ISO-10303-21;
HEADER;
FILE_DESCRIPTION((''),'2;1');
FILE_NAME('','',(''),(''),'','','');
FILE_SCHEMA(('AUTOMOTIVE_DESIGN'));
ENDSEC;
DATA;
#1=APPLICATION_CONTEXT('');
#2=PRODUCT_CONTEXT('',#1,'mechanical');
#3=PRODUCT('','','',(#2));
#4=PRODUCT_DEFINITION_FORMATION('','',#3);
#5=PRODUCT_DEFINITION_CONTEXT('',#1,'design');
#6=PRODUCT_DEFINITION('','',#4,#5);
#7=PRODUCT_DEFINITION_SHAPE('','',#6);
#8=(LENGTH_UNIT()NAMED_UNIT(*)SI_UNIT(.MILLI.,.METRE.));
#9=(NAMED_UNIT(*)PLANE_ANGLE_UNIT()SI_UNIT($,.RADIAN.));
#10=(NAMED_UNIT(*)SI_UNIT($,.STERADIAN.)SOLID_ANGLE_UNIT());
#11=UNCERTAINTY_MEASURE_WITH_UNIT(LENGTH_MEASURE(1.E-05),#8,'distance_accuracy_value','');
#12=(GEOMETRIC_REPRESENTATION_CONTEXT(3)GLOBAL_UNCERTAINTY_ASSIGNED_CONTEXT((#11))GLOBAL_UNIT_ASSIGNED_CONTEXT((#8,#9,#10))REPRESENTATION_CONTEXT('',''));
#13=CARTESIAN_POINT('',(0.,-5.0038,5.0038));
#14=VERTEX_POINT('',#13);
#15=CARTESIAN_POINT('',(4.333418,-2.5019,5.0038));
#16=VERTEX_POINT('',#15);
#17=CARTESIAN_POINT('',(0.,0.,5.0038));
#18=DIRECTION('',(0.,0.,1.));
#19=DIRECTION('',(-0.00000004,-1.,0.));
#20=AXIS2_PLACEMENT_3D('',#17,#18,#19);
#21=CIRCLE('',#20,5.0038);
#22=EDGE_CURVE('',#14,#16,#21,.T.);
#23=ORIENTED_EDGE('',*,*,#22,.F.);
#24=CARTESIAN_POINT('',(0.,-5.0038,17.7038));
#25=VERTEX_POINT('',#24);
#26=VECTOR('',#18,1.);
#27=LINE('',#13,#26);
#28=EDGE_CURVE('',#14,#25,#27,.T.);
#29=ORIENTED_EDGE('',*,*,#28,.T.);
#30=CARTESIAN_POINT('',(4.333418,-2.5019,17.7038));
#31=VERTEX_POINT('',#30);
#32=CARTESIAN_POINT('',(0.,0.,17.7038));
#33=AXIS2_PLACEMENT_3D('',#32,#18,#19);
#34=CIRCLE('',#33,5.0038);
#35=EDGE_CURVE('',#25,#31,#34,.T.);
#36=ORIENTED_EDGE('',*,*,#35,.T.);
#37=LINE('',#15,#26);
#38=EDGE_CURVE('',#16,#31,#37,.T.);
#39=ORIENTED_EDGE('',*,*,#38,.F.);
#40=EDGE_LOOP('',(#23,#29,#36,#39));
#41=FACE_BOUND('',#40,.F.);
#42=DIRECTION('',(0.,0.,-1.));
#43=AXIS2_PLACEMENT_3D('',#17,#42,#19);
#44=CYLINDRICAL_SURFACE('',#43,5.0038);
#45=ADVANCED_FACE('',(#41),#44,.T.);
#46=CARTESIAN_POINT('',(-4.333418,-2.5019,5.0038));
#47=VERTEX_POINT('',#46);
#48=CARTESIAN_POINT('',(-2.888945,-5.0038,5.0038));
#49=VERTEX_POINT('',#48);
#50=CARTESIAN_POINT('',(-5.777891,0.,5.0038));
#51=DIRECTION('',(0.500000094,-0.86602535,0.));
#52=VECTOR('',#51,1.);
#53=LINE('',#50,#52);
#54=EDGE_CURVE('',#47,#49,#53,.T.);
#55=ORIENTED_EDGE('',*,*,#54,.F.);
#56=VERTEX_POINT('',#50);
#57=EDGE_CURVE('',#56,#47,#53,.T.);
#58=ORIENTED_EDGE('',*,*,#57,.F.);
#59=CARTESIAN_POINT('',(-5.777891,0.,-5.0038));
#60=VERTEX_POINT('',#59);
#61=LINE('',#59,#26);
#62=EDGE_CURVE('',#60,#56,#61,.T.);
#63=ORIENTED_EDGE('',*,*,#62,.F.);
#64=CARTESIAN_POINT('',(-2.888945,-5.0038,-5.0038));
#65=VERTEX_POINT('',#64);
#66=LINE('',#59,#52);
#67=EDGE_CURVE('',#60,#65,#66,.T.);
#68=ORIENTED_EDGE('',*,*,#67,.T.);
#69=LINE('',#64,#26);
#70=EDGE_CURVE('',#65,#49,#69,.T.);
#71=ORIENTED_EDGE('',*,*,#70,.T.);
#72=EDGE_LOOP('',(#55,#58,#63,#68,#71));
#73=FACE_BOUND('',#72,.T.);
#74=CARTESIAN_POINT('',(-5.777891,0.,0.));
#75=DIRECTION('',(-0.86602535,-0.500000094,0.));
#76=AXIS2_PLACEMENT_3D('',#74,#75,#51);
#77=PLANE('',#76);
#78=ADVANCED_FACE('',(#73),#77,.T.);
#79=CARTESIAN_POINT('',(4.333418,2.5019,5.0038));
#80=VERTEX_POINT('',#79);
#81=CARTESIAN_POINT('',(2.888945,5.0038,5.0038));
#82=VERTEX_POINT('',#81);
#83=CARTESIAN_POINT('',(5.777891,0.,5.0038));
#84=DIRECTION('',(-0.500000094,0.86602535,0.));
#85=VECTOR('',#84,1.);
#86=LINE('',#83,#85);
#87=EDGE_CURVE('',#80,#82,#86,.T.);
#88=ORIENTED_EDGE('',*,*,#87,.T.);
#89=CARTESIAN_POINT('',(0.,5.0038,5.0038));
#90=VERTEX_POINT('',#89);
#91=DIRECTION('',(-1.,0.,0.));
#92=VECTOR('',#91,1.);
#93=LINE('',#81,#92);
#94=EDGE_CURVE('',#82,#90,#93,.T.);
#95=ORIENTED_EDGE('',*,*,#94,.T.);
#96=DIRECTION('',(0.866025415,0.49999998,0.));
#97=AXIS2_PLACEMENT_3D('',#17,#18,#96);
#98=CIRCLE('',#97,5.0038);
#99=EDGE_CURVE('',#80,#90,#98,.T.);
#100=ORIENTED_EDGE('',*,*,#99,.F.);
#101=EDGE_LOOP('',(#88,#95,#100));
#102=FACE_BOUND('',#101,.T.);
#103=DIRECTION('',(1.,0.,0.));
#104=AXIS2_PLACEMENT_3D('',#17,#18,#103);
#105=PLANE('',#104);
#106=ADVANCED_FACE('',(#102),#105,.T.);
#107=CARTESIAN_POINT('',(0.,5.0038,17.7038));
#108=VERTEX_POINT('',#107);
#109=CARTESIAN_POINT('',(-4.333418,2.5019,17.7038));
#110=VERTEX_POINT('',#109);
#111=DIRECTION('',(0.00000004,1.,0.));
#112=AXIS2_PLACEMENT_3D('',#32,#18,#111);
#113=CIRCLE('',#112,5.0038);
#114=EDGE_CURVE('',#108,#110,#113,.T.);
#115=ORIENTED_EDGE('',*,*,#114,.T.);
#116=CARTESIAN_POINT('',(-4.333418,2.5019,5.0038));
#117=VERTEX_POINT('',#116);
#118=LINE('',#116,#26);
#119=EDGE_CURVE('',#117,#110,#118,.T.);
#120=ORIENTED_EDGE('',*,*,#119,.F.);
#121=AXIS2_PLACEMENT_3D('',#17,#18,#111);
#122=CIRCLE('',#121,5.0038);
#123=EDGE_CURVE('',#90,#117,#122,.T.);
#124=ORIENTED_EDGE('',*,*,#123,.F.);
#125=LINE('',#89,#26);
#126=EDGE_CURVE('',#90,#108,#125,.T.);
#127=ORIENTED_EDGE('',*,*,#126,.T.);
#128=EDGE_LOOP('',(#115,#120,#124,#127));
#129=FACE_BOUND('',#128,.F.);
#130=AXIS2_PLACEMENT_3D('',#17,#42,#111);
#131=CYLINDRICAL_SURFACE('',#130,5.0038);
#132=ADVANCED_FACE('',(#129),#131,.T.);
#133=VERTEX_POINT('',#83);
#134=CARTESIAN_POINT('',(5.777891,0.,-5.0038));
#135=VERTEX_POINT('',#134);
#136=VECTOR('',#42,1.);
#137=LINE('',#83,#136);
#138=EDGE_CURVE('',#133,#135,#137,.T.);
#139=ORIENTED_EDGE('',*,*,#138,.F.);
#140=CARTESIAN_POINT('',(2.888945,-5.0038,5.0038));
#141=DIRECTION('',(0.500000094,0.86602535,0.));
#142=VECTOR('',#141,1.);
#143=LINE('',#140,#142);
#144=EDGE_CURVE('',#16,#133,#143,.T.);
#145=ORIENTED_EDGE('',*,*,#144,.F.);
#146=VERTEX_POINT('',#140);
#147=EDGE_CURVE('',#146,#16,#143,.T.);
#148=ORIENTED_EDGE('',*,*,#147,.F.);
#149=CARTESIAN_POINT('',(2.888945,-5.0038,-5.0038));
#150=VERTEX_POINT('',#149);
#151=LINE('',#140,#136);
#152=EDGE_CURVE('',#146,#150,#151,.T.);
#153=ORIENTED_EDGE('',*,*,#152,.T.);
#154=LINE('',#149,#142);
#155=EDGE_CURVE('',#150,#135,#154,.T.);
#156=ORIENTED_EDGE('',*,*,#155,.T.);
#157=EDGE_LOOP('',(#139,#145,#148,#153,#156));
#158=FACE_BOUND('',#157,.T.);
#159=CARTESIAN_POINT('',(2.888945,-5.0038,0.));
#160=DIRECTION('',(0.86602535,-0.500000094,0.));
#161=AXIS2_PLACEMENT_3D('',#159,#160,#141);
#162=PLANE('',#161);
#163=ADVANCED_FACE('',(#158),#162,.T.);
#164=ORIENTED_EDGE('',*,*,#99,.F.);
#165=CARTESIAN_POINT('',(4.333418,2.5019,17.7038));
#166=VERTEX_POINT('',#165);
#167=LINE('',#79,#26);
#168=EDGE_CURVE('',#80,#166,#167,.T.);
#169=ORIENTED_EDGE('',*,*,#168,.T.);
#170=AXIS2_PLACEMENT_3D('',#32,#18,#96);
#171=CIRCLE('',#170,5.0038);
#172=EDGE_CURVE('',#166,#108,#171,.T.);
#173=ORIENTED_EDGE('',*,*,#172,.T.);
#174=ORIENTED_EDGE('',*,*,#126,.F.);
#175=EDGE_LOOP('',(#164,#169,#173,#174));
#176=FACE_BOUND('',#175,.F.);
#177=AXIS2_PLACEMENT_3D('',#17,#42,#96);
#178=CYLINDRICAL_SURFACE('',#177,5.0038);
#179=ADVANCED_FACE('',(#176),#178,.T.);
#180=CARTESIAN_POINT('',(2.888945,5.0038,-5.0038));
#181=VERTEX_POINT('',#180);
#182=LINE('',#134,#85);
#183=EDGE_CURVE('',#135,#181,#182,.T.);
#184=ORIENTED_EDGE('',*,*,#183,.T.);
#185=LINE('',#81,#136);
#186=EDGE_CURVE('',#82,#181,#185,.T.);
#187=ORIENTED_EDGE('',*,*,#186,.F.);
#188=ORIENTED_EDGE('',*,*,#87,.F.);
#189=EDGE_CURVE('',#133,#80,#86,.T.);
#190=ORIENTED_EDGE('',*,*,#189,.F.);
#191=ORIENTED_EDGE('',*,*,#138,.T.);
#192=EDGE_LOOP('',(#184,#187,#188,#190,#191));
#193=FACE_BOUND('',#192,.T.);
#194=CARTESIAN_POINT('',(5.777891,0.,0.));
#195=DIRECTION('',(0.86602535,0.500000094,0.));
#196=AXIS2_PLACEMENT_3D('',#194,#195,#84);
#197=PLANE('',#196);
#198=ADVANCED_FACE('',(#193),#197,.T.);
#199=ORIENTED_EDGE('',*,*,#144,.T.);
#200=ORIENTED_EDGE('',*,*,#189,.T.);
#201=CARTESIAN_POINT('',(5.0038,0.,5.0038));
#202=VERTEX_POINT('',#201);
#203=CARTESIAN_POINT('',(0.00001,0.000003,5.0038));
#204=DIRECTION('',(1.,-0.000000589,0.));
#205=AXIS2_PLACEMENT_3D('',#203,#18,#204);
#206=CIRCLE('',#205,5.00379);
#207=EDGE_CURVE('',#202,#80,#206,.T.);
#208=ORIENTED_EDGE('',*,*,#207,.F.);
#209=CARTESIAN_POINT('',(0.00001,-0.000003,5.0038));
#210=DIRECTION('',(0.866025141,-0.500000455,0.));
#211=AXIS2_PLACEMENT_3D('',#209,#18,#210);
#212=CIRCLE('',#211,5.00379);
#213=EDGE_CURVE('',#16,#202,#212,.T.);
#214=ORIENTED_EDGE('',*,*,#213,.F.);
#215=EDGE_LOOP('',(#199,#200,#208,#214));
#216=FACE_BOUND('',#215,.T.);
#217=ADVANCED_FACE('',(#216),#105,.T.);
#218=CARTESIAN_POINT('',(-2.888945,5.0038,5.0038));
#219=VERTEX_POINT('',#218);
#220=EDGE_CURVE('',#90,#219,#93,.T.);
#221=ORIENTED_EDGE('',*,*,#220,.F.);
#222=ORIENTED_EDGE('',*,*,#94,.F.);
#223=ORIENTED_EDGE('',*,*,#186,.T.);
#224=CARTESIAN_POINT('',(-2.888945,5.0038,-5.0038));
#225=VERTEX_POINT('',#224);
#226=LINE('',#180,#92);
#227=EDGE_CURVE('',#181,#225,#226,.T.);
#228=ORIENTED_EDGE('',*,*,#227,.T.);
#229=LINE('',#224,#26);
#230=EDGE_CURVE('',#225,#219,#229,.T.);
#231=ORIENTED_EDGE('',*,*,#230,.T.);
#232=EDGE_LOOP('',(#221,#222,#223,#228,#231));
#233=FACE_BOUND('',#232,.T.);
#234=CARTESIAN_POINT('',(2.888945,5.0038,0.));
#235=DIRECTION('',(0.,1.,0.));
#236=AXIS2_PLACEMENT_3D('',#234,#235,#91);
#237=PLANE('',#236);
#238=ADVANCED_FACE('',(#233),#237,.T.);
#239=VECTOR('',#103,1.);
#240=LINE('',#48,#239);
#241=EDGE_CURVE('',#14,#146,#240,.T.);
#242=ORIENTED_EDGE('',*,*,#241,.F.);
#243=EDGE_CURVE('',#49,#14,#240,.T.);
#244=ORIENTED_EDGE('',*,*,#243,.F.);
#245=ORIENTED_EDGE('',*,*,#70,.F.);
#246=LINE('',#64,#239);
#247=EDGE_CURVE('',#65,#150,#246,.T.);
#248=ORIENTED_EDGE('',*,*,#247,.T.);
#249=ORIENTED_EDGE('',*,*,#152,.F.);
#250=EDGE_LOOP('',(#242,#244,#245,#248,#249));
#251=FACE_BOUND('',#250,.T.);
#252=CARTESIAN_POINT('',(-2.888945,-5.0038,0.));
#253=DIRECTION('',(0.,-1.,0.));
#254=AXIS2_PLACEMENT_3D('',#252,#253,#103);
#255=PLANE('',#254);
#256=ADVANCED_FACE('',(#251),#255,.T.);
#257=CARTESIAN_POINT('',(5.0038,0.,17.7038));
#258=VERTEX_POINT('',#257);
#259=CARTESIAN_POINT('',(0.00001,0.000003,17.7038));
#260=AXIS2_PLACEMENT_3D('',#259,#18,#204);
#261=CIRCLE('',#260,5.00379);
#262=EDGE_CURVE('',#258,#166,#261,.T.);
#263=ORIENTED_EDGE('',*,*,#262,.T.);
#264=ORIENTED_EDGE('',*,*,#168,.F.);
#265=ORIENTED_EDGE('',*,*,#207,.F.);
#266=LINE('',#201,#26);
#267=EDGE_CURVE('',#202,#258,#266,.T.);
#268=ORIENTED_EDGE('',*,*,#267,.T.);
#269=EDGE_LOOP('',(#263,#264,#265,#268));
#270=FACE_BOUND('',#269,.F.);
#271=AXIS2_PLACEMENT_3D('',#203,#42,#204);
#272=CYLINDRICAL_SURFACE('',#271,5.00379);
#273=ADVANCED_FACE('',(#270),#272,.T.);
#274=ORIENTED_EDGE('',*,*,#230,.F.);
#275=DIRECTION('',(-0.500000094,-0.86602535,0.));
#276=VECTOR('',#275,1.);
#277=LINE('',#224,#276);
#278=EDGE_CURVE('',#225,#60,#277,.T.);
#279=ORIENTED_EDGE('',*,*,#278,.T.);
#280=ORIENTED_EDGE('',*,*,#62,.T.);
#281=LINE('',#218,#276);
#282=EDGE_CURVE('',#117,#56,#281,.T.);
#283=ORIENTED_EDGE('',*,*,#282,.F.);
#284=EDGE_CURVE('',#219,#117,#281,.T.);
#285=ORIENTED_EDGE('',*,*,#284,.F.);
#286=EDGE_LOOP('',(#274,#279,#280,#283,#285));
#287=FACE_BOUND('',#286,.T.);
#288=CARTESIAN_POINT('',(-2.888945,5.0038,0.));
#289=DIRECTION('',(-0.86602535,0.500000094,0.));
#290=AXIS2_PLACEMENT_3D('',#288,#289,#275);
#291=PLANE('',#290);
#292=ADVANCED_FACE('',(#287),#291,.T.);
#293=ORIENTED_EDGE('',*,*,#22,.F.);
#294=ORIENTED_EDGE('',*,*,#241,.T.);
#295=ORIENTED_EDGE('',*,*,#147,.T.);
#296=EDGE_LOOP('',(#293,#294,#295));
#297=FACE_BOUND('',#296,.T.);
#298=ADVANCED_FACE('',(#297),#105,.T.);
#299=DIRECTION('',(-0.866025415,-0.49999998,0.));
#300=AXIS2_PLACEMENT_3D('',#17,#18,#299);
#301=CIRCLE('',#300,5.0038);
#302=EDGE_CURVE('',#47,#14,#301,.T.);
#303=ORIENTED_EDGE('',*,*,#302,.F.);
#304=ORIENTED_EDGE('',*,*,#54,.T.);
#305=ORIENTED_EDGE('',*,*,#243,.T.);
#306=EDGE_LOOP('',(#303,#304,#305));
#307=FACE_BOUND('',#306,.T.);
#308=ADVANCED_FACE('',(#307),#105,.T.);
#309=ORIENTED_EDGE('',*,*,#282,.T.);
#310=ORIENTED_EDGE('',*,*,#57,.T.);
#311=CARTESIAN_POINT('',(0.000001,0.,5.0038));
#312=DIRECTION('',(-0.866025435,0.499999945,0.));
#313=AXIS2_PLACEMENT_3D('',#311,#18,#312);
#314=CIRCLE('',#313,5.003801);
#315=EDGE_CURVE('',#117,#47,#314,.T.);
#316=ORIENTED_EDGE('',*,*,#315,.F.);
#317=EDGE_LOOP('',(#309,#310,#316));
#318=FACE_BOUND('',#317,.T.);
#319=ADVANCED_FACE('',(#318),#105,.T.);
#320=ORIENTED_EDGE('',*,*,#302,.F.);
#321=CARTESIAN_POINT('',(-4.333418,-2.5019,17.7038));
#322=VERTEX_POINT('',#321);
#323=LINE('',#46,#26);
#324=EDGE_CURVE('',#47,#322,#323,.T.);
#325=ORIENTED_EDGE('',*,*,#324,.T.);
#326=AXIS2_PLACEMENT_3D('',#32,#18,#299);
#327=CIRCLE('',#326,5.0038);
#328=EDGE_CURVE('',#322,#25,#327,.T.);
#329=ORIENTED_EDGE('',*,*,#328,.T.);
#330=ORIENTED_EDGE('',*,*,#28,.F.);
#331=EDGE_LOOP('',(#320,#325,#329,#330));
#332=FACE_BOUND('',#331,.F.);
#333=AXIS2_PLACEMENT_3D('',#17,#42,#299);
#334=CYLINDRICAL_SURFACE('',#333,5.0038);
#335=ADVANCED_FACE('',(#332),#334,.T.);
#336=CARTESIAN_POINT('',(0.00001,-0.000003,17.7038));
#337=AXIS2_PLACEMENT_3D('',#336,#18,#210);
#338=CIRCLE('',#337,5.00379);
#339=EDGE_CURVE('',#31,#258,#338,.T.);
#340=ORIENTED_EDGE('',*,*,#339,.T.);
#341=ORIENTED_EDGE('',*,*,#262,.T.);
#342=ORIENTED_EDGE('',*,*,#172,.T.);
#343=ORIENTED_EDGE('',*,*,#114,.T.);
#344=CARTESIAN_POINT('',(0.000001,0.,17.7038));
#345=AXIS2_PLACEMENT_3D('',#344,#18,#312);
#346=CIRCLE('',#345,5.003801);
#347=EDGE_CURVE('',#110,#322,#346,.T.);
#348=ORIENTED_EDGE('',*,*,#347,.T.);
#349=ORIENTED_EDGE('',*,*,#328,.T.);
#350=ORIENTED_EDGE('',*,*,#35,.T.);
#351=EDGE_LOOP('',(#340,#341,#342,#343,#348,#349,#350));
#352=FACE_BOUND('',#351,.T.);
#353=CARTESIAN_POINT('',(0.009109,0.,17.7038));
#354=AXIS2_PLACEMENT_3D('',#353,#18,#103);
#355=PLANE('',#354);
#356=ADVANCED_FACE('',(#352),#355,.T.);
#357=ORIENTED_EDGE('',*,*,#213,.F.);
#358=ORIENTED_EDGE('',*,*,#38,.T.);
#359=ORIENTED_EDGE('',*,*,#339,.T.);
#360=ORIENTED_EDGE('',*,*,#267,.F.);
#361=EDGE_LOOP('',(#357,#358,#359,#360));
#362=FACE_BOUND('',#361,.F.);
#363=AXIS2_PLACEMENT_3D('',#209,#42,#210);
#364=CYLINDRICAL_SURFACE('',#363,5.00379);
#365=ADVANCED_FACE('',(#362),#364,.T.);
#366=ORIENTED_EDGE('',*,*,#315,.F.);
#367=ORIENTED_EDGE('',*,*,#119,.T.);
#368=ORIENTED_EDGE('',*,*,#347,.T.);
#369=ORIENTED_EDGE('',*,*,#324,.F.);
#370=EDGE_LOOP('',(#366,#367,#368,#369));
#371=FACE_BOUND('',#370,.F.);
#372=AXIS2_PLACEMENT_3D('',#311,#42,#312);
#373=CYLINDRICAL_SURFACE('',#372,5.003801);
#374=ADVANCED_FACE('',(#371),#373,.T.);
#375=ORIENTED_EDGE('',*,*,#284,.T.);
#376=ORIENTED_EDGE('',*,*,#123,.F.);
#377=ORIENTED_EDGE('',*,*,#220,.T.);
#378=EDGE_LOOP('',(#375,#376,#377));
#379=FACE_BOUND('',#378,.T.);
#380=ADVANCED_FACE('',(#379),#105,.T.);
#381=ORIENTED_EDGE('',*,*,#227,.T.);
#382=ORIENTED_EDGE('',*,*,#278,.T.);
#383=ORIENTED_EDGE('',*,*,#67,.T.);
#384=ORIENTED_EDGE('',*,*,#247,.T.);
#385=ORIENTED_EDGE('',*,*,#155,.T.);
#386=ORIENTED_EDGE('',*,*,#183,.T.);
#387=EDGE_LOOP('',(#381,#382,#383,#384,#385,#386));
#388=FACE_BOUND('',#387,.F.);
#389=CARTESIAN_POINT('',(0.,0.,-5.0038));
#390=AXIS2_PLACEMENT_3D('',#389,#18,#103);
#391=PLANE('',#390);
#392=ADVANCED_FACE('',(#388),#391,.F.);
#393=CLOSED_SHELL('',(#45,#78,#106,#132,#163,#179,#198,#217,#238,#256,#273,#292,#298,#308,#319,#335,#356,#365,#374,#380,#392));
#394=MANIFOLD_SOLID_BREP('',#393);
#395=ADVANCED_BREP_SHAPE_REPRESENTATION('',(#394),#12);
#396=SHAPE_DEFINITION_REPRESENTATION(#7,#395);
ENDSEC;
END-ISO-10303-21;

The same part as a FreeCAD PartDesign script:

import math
import FreeCAD as App
import Part
import Sketcher
from FreeCAD import Vector
Q = App.Units.Quantity


def add_polygon(sketch, points):
    """Adds a closed chain of lines whose ends are joined by coincident constraints."""
    first, n = sketch.GeometryCount, len(points)
    for a, b in zip(points, points[1:] + points[:1]):
        sketch.addGeometry(Part.LineSegment(App.Vector(*a, 0), App.Vector(*b, 0)), False)
    for i in range(n):
        sketch.addConstraint(Sketcher.Constraint("Coincident", first + i, 2, first + (i + 1) % n, 1))

doc = App.newDocument("Part")
body = doc.addObject("PartDesign::Body", "Body")

sketch1 = doc.addObject("Sketcher::SketchObject", "Sketch")
body.addObject(sketch1)
sketch1.AttachmentSupport = (doc.XY_Plane, [""])
sketch1.MapMode = "FlatFace"
add_polygon(sketch1, [(2.888945, 5.0038), (-2.888945, 5.0038), (-5.777891, 0), (-2.888945, -5.0038), (2.888945, -5.0038), (5.777891, 0)])
sketch1.addConstraint([
    Sketcher.Constraint("Horizontal", 0),
    Sketcher.Constraint("Horizontal", 3),
    Sketcher.Constraint("Symmetric", 0, 2, 3, 2, -1, 1),
    Sketcher.Constraint("Symmetric", 1, 2, 4, 2, -1, 1),
    Sketcher.Constraint("PointOnObject", 1, 2, -1),
    Sketcher.Constraint("Parallel", 2, 5),
    Sketcher.Constraint("Vertical", 0, 2, 2, 2),
    Sketcher.Constraint("Angle", 1, Q("-120.000006 deg")),
    Sketcher.Constraint("DistanceY", -1, 1, 0, 2, Q("0.197 in")),
    Sketcher.Constraint("DistanceX", 0, 2, 0, 1, 5.77789),
])
pad1 = doc.addObject("PartDesign::Pad", "Pad")
body.addObject(pad1)
pad1.Profile = sketch1
pad1.Length = Q("0.394 in")
pad1.Midplane = True

sketch2 = doc.addObject("Sketcher::SketchObject", "Sketch001")
body.addObject(sketch2)
sketch2.AttachmentSupport = (doc.XY_Plane, [""])
sketch2.MapMode = "FlatFace"
sketch2.AttachmentOffset = App.Placement(Vector(0, 0, 0.197 * 25.4), App.Rotation())
sketch2.addGeometry([
    Part.ArcOfCircle(Part.Circle(Vector(0.00001, -0.000003, 0), Vector(0, 0, 1), 5.00379), math.radians(-30.00003), math.radians(0.000034)),
    Part.ArcOfCircle(Part.Circle(Vector(0.00001, 0.000003, 0), Vector(0, 0, 1), 5.00379), math.radians(-0.000034), math.radians(30.00003)),
    Part.ArcOfCircle(Part.Circle(Vector(0, 0, 0), Vector(0, 0, 1), 5.0038), math.radians(29.999999), math.radians(90.000002)),
    Part.ArcOfCircle(Part.Circle(Vector(0, 0, 0), Vector(0, 0, 1), 5.0038), math.radians(89.999998), math.radians(150.000001)),
    Part.ArcOfCircle(Part.Circle(Vector(0.000001, 0, 0), Vector(0, 0, 1), 5.003801), math.radians(150.000004), math.radians(209.999996)),
    Part.ArcOfCircle(Part.Circle(Vector(0, 0, 0), Vector(0, 0, 1), 5.0038), math.radians(-150.000001), math.radians(-89.999998)),
    Part.ArcOfCircle(Part.Circle(Vector(0, 0, 0), Vector(0, 0, 1), 5.0038), math.radians(-90.000002), math.radians(-29.999999)),
], False)
sketch2.addConstraint([
    Sketcher.Constraint("Tangent", 0, 2, 1, 1),
    Sketcher.Constraint("Tangent", 1, 2, 2, 1),
    Sketcher.Constraint("Tangent", 2, 2, 3, 1),
    Sketcher.Constraint("Tangent", 3, 2, 4, 1),
    Sketcher.Constraint("Tangent", 4, 2, 5, 1),
    Sketcher.Constraint("Tangent", 5, 2, 6, 1),
    Sketcher.Constraint("Tangent", 6, 2, 0, 1),
    Sketcher.Constraint("Coincident", 2, 3, -1, 1),
    Sketcher.Constraint("Coincident", 4, 3, -1, 1),
    Sketcher.Constraint("Coincident", 6, 3, -1, 1),
    Sketcher.Constraint("PointOnObject", 0, 2, -1),
    Sketcher.Constraint("PointOnObject", 2, 2, -2),
    Sketcher.Constraint("PointOnObject", 5, 2, -2),
    Sketcher.Constraint("Horizontal", 1, 2, 3, 2),
    Sketcher.Constraint("Horizontal", 4, 2, 6, 2),
    Sketcher.Constraint("Vertical", 3, 2, 4, 2),
    Sketcher.Constraint("Radius", 2, Q("0.197 in")),
    Sketcher.Constraint("DistanceY", 4, 2, 3, 2, Q("0.197 in")),
])
pad2 = doc.addObject("PartDesign::Pad", "Pad001")
body.addObject(pad2)
pad2.Profile = sketch2
pad2.Length = Q("0.5 in")

doc.recompute()
